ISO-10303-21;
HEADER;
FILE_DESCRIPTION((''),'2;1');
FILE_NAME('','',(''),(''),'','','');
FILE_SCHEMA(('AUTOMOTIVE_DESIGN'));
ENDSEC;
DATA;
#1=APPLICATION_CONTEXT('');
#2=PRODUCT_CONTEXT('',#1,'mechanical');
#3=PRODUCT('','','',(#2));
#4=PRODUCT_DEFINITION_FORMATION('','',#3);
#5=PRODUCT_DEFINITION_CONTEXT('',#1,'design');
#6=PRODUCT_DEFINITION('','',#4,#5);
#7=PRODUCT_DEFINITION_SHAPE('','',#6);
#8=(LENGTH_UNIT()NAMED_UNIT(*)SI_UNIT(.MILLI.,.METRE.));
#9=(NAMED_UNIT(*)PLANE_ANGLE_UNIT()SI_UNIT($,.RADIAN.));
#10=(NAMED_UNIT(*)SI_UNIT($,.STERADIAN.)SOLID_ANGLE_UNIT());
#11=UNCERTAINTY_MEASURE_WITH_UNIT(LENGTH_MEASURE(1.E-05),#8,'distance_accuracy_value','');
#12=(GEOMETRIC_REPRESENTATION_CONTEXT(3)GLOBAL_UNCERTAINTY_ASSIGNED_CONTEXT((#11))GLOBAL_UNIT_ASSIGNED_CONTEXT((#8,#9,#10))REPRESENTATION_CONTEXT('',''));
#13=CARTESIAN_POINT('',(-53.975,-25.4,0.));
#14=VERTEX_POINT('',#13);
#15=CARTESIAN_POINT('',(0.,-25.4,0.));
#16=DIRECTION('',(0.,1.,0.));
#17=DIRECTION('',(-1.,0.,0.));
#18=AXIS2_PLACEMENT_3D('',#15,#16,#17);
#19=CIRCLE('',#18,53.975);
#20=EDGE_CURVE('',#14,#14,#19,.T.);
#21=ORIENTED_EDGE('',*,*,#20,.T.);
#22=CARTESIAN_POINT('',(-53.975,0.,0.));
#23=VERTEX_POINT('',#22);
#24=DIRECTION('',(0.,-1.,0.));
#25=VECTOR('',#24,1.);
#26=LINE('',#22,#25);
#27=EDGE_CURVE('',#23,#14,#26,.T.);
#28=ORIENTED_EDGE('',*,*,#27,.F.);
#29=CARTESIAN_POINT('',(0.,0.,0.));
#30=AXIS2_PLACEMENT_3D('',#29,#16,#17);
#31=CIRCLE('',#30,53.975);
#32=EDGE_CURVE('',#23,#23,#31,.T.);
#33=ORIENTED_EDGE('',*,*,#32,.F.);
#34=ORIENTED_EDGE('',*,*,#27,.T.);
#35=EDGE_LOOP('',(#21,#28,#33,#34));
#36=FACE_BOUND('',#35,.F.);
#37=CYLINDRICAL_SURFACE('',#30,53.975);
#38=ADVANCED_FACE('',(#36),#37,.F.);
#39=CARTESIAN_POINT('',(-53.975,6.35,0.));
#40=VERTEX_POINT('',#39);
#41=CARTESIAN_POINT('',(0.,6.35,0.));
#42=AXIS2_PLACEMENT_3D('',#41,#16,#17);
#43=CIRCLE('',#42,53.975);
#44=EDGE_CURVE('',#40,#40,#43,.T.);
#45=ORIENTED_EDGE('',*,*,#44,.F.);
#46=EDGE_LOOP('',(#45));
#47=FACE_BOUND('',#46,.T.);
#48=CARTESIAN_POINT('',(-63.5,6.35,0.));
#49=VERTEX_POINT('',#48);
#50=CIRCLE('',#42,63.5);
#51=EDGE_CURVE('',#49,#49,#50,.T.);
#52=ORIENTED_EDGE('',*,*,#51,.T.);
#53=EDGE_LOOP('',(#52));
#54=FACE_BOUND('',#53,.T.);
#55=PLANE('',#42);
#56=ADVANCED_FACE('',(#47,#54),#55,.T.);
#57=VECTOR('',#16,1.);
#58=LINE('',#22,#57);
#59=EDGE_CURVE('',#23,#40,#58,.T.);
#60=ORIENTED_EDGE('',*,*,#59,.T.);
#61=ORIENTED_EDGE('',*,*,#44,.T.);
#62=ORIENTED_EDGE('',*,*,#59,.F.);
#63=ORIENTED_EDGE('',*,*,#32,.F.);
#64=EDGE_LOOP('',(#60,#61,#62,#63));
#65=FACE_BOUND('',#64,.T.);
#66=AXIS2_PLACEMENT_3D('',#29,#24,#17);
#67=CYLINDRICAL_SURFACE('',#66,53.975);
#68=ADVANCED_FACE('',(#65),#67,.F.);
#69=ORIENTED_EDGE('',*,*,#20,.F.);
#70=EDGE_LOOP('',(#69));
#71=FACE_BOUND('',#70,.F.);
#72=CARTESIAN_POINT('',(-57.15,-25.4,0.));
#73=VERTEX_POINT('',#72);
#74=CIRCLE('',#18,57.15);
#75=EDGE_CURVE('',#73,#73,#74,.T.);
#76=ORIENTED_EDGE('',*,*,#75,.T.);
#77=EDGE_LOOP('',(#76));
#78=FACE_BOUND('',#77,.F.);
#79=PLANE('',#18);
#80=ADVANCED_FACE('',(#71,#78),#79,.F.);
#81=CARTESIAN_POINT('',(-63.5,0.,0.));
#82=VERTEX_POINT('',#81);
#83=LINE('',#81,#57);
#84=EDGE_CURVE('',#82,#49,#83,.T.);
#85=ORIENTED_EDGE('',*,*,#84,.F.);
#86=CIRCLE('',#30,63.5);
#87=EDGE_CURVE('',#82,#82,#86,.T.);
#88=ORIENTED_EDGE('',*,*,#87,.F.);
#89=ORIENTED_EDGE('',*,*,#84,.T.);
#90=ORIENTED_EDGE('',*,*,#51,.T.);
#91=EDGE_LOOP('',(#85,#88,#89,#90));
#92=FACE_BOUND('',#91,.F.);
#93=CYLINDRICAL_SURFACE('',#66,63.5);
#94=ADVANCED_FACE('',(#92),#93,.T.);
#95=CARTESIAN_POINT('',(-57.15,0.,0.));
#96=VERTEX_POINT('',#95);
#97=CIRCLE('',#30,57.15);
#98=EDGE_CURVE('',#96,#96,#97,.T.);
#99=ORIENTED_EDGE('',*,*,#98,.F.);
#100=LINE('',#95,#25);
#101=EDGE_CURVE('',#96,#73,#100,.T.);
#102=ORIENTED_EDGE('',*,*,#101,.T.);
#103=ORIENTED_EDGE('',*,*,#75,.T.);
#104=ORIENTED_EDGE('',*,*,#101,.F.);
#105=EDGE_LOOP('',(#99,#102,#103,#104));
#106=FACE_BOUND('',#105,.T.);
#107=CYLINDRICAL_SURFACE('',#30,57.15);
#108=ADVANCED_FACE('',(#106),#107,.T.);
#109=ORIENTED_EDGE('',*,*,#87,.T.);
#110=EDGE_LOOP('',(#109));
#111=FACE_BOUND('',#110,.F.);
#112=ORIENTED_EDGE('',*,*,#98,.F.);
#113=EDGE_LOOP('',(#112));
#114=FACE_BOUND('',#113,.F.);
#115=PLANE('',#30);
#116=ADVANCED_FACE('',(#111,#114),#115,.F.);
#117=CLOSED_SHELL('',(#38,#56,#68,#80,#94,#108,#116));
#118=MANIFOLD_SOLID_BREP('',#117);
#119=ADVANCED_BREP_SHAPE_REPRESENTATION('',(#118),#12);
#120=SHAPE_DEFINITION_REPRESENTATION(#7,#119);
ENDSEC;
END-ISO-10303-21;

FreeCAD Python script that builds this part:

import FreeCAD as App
import Part
import Sketcher
Q = App.Units.Quantity

doc = App.newDocument("Part")
body = doc.addObject("PartDesign::Body", "Body")

# Sketch on XZ plane
sketch1 = doc.addObject("Sketcher::SketchObject", "Sketch")
body.addObject(sketch1)
sketch1.AttachmentSupport = (doc.XZ_Plane, [""])
sketch1.MapMode = "FlatFace"
sketch1.addGeometry([
    Part.Circle(App.Vector(0, 0, 0), App.Vector(0, 0, 1), 64),
    Part.Circle(App.Vector(0, 0, 0), App.Vector(0, 0, 1), 54),
], False)
sketch1.addConstraint([
    Sketcher.Constraint("Coincident", 0, 3, -1, 1),
    Sketcher.Constraint("Coincident", 1, 3, -1, 1),
    Sketcher.Constraint("Diameter", 0, Q("5 in")),
    Sketcher.Constraint("Diameter", 1, Q("4.25 in")),
])
pad1 = doc.addObject("PartDesign::Pad", "Pad")
body.addObject(pad1)
pad1.Profile = sketch1
pad1.Length = Q("0.25 in")
pad1.Reversed = True

# Sketch on XZ plane
sketch2 = doc.addObject("Sketcher::SketchObject", "Sketch001")
body.addObject(sketch2)
sketch2.AttachmentSupport = (doc.XZ_Plane, [""])
sketch2.MapMode = "FlatFace"
sketch2.addGeometry([
    Part.Circle(App.Vector(0, 0, 0), App.Vector(0, 0, 1), 57),
    Part.Circle(App.Vector(0, 0, 0), App.Vector(0, 0, 1), 54),
], False)
sketch2.addConstraint([
    Sketcher.Constraint("Coincident", 0, 3, -1, 1),
    Sketcher.Constraint("Coincident", 1, 3, -1, 1),
    Sketcher.Constraint("Diameter", 0, Q("4.5 in")),
    Sketcher.Constraint("Diameter", 1, Q("4.25 in")),
])
pad2 = doc.addObject("PartDesign::Pad", "Pad001")
body.addObject(pad2)
pad2.Profile = sketch2
pad2.Length = Q("1 in")

doc.recompute()
